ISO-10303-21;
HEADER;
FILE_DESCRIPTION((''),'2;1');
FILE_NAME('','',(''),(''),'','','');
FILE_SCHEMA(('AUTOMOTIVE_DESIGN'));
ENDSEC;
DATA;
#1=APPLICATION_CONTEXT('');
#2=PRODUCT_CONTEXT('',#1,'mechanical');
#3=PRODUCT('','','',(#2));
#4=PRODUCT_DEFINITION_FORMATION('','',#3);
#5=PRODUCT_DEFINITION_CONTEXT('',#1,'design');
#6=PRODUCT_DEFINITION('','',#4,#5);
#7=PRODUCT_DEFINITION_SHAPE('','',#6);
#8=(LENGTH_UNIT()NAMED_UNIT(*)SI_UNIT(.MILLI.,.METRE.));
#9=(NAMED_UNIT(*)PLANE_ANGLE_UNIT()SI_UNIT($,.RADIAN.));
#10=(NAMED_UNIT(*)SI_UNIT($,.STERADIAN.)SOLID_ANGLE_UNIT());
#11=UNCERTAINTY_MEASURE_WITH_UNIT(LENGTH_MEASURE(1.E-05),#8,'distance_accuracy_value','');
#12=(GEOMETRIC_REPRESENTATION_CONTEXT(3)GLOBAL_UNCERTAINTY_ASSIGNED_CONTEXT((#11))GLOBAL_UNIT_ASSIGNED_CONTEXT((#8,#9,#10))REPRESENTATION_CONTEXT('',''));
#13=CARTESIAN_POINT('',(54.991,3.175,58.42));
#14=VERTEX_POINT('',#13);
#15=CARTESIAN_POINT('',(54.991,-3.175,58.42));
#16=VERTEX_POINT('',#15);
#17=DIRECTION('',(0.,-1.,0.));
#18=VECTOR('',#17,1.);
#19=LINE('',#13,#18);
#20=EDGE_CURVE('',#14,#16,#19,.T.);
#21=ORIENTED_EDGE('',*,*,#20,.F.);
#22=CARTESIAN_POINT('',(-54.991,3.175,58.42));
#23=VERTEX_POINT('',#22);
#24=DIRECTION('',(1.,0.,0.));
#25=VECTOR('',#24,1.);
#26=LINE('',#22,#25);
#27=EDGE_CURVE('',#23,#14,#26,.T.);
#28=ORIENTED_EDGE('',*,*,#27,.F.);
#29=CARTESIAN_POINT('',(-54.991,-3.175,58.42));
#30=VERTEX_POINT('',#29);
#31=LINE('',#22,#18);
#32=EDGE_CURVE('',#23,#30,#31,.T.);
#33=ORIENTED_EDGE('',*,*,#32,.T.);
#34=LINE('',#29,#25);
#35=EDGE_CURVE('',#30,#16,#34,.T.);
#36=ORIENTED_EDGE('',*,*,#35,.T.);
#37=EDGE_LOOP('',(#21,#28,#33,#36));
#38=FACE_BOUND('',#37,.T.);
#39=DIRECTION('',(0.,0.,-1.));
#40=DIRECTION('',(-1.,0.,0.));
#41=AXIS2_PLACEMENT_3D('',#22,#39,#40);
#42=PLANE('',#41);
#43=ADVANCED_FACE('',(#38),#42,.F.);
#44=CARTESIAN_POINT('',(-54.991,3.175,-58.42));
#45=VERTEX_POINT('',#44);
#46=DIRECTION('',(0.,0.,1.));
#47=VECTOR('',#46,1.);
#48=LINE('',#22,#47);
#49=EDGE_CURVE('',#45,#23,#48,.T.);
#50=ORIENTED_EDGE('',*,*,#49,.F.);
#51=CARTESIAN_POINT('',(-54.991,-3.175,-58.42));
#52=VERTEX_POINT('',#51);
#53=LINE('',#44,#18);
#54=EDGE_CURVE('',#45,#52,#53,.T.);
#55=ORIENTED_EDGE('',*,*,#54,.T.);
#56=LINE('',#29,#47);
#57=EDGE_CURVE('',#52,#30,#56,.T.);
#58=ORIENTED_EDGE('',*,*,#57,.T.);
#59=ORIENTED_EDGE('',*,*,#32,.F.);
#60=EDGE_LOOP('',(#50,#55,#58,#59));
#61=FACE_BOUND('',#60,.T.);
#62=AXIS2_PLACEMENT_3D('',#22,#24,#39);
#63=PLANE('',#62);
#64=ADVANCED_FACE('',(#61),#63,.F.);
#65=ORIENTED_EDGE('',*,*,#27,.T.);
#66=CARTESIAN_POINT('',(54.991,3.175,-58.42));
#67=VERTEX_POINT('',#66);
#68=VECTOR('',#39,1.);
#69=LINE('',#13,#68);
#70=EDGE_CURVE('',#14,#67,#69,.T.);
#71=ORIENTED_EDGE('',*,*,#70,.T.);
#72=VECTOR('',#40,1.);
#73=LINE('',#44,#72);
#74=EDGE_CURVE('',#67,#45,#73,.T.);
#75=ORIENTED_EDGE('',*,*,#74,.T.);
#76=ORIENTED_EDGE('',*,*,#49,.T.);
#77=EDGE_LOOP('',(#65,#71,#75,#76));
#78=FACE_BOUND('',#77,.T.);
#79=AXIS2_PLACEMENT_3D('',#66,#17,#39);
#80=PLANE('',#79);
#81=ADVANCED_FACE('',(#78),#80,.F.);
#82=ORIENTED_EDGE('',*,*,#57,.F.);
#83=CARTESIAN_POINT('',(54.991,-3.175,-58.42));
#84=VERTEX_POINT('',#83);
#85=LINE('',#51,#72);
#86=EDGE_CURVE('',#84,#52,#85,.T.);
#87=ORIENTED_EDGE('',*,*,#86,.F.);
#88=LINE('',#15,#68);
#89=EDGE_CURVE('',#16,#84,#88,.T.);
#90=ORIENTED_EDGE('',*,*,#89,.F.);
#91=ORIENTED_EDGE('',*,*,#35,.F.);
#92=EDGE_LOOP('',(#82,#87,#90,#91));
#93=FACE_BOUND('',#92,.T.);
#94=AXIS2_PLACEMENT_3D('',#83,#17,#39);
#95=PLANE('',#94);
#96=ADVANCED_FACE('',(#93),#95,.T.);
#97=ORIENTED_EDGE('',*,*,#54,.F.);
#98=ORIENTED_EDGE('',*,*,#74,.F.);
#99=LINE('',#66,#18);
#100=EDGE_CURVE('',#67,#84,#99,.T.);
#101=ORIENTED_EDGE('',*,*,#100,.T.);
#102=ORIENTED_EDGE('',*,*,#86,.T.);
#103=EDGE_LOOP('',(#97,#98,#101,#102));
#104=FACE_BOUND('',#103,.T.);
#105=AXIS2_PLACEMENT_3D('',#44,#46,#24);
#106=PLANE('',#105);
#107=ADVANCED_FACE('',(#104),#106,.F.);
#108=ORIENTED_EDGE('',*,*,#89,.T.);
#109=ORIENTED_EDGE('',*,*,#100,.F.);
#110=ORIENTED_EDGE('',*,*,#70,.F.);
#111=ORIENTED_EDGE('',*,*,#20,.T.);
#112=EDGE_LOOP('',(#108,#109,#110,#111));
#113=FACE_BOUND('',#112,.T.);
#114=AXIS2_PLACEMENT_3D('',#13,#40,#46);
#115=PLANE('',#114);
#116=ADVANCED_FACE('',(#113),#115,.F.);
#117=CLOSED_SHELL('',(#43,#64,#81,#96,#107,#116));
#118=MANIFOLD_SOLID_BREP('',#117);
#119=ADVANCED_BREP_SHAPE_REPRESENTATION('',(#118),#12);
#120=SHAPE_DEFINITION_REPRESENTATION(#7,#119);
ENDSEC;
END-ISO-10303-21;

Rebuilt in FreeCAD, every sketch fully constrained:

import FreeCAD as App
import Part
import Sketcher
Q = App.Units.Quantity


def add_polygon(sketch, points):
    """Adds a closed chain of lines whose ends are joined by coincident constraints."""
    first, n = sketch.GeometryCount, len(points)
    for a, b in zip(points, points[1:] + points[:1]):
        sketch.addGeometry(Part.LineSegment(App.Vector(*a, 0), App.Vector(*b, 0)), False)
    for i in range(n):
        sketch.addConstraint(Sketcher.Constraint("Coincident", first + i, 2, first + (i + 1) % n, 1))

doc = App.newDocument("Part")
body = doc.addObject("PartDesign::Body", "Body")

sketch1 = body.newObject("Sketcher::SketchObject", "Sketch")
sketch1.AttachmentSupport = (doc.getObject("XZ_Plane"), [""])
sketch1.MapMode = "FlatFace"
add_polygon(sketch1, [(-54.991, -58.42), (-54.991, 58.42), (54.991, 58.42), (54.991, -58.42)])
sketch1.addConstraint(Sketcher.Constraint("Vertical", 0))
sketch1.addConstraint(Sketcher.Constraint("Horizontal", 1))
sketch1.addConstraint(Sketcher.Constraint("Vertical", 2))
sketch1.addConstraint(Sketcher.Constraint("Horizontal", 3))
sketch1.addConstraint(Sketcher.Constraint("Symmetric", 0, 2, 2, 2, -1, 1))
sketch1.addConstraint(Sketcher.Constraint("DistanceY", 0, 1, 0, 2, Q("4.6 in")))
sketch1.addConstraint(Sketcher.Constraint("DistanceX", 1, 1, 1, 2, Q("4.33 in")))
pad1 = body.newObject("PartDesign::Pad", "Pad")
pad1.Profile = sketch1
pad1.Length = Q("0.25 in")
pad1.Midplane = True

doc.recompute()
